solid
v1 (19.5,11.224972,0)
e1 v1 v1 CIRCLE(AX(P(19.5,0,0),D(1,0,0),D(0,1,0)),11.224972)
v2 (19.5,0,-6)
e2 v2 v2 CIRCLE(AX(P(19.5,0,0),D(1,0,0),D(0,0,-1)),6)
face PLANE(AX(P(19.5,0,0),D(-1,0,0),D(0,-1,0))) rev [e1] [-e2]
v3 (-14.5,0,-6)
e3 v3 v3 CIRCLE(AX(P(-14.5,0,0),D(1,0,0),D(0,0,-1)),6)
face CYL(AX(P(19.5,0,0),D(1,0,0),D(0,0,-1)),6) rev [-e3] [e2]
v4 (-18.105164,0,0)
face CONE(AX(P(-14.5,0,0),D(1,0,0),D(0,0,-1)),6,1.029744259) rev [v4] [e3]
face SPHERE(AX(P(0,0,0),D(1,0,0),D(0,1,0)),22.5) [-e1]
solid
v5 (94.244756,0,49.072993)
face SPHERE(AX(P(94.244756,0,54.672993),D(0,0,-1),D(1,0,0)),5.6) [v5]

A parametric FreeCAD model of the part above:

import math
import FreeCAD as App
import Part
import Sketcher
Q = App.Units.Quantity

doc = App.newDocument("Part")
body = doc.addObject("PartDesign::Body", "Body")

# Sketch on XY plane
sketch1 = doc.addObject("Sketcher::SketchObject", "Sketch")
body.addObject(sketch1)
sketch1.AttachmentSupport = (doc.XY_Plane, [""])
sketch1.MapMode = "FlatFace"
sketch1.addGeometry([
    Part.LineSegment(App.Vector(20, 0, 0), App.Vector(-22, 0, 0)),
    Part.ArcOfCircle(Part.Circle(App.Vector(0, 0, 0), App.Vector(0, 0, 1), 22), math.radians(180), math.radians(330)),
    Part.LineSegment(App.Vector(20, -11, 0), App.Vector(20, 0, 0)),
], False)
sketch1.addConstraint([
    Sketcher.Constraint("Coincident", 0, 2, 1, 1),
    Sketcher.Constraint("Coincident", 1, 2, 2, 1),
    Sketcher.Constraint("Coincident", 2, 2, 0, 1),
    Sketcher.Constraint("Horizontal", 0),
    Sketcher.Constraint("Vertical", 2),
    Sketcher.Constraint("Coincident", 1, 3, -1, 1),
    Sketcher.Constraint("PointOnObject", 0, 2, -1),
    Sketcher.Constraint("Radius", 1, Q("22.5 mm")),
    Sketcher.Constraint("DistanceX", 0, 2, 0, 1, Q("42 mm")),
])
revolution = doc.addObject("PartDesign::Revolution", "Revolution")
body.addObject(revolution)
revolution.Profile = sketch1
revolution.ReferenceAxis = (sketch1, ["H_Axis"])
revolution.Angle = 360

# Sketch on YZ plane
sketch2 = doc.addObject("Sketcher::SketchObject", "Sketch001")
body.addObject(sketch2)
sketch2.AttachmentSupport = (doc.YZ_Plane, [""])
sketch2.MapMode = "FlatFace"
sketch2.AttachmentOffset = App.Placement(App.Vector(0, 0, 19.5), App.Rotation())
sketch2.addGeometry(Part.Circle(App.Vector(0, 0, 0), App.Vector(0, 0, 1), 6), False)
sketch2.addConstraint([
    Sketcher.Constraint("Coincident", 0, 3, -1, 1),
    Sketcher.Constraint("Diameter", 0, Q("12 mm")),
])
doc.recompute()
hole = doc.addObject("PartDesign::Hole", "Hole")
body.addObject(hole)
hole.Profile = sketch2
hole.ThreadType = "None"
hole.Diameter = 12
hole.DepthType = "Dimension"
hole.Depth = 34
hole.DrillPoint = "Angled"
hole.DrillPointAngle = 118
body2 = doc.addObject("PartDesign::Body", "Body001")

# Sketch on XZ plane
sketch3 = doc.addObject("Sketcher::SketchObject", "Sketch002")
body2.addObject(sketch3)
sketch3.AttachmentSupport = (doc.getObject("XZ_Plane001"), [""])
sketch3.MapMode = "FlatFace"
sketch3.addGeometry([
    Part.LineSegment(App.Vector(94, 49, 0), App.Vector(94, 60, 0)),
    Part.ArcOfCircle(Part.Circle(App.Vector(94, 55, 0), App.Vector(0, 0, 1), 6), math.radians(-90), math.radians(90)),
], False)
sketch3.addGeometry(Part.LineSegment(App.Vector(94, 49, 0), App.Vector(94, 60, 0)), True)  # axis
sketch3.addConstraint([
    Sketcher.Constraint("Coincident", 0, 1, 1, 1),
    Sketcher.Constraint("Coincident", 1, 2, 0, 2),
    Sketcher.Constraint("Vertical", 0),
    Sketcher.Constraint("Vertical", 2),
    Sketcher.Constraint("Coincident", 2, 1, 0, 1),
    Sketcher.Constraint("Vertical", 1, 3, 0, 1),
    Sketcher.Constraint("Equal", 0, 2),
    Sketcher.Constraint("Radius", 1, Q("5.6 mm")),
    Sketcher.Constraint("DistanceX", -1, 1, 1, 3, Q("94.244756 mm")),
    Sketcher.Constraint("DistanceY", -1, 1, 1, 3, Q("54.672993 mm")),
])
revolution2 = doc.addObject("PartDesign::Revolution", "Revolution001")
body2.addObject(revolution2)
revolution2.Profile = sketch3
revolution2.ReferenceAxis = (sketch3, ["Axis0"])
revolution2.Angle = 360

doc.recompute()
